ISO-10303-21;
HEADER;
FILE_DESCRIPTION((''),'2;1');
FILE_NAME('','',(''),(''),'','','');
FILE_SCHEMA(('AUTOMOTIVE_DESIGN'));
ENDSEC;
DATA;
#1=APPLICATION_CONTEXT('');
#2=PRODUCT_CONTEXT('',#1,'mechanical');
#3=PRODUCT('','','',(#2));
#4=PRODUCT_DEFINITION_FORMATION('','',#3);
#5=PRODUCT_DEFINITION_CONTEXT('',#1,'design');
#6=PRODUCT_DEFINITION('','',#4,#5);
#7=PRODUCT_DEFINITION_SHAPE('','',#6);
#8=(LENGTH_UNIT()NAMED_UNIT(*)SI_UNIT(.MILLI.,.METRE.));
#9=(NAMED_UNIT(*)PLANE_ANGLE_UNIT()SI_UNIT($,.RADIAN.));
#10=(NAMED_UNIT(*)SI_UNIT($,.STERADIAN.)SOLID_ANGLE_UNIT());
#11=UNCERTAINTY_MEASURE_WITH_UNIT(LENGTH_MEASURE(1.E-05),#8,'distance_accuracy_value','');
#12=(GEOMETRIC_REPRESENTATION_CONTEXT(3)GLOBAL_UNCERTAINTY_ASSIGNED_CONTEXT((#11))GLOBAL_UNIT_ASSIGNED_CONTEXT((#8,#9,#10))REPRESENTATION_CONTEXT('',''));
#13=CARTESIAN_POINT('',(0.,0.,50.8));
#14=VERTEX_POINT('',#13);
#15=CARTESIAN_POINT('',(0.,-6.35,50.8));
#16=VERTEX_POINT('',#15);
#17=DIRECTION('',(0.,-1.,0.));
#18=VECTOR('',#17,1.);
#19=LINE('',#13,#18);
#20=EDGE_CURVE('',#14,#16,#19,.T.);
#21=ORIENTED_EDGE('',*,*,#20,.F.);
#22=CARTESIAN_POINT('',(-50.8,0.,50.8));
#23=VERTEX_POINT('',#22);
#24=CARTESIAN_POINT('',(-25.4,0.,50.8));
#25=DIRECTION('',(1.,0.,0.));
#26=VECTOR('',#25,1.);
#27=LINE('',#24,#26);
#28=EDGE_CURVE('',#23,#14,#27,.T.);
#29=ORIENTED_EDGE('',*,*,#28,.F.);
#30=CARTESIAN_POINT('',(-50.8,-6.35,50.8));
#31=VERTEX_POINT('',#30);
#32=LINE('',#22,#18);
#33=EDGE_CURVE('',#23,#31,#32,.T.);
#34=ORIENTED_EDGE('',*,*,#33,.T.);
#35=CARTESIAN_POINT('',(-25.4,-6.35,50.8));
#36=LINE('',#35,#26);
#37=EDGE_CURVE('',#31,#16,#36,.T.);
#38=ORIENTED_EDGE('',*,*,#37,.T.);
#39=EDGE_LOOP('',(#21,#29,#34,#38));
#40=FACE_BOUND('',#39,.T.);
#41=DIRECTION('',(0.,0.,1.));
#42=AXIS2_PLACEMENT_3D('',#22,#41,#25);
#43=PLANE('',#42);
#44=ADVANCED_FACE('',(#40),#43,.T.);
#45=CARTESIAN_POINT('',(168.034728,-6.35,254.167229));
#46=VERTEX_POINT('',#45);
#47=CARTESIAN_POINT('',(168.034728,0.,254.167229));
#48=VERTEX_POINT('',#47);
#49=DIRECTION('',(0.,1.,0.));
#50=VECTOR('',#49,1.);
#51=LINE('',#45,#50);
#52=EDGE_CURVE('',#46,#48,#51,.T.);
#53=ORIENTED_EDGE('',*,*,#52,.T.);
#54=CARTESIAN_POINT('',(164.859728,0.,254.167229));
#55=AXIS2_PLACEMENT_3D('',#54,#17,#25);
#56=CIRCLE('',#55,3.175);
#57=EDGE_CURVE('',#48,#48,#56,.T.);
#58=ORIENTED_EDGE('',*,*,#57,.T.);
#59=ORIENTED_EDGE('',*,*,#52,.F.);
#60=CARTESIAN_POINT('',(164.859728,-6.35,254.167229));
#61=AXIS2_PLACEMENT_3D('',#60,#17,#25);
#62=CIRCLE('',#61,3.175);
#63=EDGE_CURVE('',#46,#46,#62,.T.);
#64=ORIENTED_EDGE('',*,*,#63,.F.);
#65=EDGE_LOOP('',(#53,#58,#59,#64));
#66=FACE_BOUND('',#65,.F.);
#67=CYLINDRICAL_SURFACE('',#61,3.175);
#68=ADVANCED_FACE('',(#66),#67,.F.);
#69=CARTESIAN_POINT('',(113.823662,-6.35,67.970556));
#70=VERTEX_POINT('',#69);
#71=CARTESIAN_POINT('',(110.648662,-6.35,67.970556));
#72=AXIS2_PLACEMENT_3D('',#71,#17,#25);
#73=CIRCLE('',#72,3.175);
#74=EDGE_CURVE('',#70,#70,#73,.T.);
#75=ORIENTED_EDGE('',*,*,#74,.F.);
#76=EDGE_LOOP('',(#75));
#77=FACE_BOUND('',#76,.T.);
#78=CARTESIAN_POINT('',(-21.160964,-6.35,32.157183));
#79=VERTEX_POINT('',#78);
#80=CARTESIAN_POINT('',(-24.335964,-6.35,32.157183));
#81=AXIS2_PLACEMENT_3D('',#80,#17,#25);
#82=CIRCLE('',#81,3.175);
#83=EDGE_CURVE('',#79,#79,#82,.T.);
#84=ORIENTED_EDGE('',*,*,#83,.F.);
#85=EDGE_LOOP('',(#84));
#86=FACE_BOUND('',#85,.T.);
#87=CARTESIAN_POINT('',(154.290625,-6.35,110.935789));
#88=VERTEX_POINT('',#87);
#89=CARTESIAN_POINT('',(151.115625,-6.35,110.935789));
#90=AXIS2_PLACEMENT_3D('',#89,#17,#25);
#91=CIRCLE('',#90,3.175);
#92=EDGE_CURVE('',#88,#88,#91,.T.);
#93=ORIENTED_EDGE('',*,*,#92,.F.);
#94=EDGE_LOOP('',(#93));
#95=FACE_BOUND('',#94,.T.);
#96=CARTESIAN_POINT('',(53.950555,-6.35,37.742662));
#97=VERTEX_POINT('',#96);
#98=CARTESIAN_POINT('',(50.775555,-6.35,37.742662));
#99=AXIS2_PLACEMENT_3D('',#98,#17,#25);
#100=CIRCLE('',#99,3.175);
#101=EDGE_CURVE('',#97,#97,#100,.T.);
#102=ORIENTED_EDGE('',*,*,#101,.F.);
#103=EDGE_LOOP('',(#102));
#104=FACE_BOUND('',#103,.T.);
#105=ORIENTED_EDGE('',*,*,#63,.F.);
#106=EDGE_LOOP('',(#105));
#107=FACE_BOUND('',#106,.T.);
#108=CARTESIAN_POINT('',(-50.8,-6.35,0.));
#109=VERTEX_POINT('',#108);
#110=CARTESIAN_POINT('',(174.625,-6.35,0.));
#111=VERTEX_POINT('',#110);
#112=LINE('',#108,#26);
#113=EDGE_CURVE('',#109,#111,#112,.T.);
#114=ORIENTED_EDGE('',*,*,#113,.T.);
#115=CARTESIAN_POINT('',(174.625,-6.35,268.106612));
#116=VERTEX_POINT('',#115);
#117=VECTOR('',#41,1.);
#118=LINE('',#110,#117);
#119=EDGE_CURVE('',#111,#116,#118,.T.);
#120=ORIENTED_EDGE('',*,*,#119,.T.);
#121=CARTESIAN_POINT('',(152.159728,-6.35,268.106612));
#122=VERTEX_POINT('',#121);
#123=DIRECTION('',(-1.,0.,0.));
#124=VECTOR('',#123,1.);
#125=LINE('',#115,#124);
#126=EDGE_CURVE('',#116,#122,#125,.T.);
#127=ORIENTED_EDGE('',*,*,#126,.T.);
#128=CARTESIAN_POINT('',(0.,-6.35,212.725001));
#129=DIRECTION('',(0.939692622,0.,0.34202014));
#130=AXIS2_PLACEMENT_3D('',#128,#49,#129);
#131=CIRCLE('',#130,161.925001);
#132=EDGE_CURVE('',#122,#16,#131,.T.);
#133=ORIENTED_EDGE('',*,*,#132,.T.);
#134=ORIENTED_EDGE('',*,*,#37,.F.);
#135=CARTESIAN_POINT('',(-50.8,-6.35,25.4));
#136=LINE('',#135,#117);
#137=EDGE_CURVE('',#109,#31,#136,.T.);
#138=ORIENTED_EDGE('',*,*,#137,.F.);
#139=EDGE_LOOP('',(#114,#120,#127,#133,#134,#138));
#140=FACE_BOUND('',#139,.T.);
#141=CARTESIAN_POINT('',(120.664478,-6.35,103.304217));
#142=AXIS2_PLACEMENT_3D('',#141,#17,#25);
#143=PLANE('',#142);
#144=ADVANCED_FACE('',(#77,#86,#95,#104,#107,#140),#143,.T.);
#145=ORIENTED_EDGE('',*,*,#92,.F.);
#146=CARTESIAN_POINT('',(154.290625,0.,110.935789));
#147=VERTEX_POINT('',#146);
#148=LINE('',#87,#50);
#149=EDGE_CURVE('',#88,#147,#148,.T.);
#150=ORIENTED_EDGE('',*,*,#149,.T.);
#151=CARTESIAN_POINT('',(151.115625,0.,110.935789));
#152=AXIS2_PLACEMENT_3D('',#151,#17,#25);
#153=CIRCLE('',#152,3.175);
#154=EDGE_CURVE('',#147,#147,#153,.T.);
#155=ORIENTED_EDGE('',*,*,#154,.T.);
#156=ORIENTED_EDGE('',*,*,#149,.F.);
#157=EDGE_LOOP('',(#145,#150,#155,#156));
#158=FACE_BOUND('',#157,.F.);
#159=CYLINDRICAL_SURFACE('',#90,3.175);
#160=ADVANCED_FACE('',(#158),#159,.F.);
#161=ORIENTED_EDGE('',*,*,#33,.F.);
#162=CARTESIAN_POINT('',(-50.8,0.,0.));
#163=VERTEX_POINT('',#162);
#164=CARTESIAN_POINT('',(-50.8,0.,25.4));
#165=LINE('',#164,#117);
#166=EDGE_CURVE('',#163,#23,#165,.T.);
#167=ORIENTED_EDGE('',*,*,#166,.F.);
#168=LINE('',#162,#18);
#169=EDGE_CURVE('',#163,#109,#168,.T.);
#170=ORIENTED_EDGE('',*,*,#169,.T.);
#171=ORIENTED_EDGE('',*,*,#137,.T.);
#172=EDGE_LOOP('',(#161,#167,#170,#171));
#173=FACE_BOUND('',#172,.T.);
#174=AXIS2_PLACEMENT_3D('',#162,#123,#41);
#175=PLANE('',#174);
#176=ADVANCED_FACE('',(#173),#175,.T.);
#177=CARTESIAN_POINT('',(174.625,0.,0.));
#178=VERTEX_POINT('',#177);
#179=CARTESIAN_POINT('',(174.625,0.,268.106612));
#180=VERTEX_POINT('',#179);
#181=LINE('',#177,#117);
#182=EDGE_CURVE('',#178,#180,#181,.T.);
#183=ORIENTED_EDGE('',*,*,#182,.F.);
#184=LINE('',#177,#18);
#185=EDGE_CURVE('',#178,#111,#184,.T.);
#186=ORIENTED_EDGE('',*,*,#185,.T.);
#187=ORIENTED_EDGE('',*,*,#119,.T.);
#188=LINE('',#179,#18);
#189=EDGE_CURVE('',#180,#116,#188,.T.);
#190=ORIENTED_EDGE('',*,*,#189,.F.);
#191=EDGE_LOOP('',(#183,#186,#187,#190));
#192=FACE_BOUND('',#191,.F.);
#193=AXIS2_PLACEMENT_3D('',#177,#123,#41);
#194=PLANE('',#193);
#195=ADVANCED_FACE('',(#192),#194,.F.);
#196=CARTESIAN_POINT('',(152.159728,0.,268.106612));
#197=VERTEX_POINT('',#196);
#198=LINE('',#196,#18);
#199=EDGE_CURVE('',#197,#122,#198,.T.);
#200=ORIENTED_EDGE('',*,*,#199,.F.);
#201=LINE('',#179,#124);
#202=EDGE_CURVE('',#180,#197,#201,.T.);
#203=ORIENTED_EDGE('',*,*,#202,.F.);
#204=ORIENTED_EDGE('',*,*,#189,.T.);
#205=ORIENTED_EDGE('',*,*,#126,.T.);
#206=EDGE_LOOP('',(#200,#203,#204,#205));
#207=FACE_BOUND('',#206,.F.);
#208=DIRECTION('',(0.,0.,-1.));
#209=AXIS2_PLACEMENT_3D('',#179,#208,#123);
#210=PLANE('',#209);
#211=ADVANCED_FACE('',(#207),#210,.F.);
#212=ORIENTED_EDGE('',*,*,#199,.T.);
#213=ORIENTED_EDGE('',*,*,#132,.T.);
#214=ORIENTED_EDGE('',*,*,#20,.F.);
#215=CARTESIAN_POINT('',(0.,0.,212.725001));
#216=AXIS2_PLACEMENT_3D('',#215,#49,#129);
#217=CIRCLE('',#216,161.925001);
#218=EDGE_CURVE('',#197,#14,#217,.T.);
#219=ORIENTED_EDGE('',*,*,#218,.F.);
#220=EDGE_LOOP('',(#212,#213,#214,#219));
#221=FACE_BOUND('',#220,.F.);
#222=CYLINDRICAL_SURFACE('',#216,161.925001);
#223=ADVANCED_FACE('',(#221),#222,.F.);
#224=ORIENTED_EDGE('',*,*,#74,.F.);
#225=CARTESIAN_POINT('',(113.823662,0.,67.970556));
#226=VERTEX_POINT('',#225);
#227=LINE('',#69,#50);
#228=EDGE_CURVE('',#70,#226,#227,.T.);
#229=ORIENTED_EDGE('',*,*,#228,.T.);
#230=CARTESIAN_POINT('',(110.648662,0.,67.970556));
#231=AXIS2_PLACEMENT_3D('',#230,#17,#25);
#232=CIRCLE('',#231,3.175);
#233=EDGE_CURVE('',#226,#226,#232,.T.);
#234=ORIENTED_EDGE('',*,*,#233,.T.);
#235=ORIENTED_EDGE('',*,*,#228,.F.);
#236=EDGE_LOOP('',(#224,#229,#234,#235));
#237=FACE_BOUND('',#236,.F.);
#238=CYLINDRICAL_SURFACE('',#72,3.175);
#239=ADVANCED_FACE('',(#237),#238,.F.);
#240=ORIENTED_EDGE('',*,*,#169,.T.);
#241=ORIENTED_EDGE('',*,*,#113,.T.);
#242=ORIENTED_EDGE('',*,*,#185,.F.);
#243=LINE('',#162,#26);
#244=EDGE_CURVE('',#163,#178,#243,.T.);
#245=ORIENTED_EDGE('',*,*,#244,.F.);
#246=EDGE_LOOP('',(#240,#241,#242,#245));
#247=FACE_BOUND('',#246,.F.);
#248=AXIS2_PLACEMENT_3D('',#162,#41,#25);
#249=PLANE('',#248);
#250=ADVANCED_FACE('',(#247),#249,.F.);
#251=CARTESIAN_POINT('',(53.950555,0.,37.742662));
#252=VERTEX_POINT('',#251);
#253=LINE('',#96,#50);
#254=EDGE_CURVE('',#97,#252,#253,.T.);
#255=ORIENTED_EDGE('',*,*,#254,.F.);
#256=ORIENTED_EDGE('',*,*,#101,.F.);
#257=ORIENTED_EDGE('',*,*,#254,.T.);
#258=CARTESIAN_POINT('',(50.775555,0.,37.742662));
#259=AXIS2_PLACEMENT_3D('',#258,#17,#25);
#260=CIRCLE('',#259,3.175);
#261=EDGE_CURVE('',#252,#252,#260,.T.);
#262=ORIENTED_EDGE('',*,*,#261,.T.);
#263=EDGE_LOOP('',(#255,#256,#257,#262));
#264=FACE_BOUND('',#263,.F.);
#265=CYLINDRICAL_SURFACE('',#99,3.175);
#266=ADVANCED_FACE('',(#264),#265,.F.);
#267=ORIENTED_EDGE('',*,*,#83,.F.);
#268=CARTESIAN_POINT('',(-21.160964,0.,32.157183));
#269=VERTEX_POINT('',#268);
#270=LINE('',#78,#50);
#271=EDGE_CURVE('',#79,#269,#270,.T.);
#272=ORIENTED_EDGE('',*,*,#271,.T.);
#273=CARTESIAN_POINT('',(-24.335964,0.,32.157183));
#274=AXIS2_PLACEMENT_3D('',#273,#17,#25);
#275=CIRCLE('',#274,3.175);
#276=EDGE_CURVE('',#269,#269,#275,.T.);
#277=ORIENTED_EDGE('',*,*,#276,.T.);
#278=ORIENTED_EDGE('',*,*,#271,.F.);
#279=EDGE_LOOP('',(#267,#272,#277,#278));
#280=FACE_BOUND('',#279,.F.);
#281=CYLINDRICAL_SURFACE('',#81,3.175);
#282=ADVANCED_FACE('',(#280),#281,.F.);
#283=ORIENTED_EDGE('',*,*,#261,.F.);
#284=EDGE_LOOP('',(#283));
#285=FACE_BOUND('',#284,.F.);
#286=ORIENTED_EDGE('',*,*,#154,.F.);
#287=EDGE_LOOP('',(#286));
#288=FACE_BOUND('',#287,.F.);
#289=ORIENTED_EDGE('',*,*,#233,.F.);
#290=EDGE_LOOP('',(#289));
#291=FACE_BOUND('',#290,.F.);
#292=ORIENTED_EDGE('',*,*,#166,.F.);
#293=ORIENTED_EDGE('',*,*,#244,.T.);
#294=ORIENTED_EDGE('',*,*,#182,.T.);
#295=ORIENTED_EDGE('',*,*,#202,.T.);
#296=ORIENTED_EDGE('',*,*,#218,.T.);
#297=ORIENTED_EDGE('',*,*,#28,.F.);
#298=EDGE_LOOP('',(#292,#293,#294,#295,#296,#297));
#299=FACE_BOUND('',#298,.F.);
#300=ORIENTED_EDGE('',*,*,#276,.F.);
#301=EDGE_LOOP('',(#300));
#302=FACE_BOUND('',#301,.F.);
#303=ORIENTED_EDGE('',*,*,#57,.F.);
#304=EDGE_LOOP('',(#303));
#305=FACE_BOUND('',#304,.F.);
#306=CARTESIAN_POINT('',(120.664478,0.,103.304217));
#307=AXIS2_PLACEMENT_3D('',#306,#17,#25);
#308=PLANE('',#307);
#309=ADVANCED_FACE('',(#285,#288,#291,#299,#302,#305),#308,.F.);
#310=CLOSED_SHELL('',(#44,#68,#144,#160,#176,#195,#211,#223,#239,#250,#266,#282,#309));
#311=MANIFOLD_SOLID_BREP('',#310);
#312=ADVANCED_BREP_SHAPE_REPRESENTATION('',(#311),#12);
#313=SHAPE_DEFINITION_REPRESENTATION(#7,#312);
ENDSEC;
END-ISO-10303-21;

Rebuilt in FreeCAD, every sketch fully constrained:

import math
import FreeCAD as App
import Part
import Sketcher

V = App.Vector
Q = App.Units.Quantity

doc = App.newDocument("Part")
body = doc.addObject("PartDesign::Body", "Body")

# Sketch on XZ plane
sketch1 = body.newObject("Sketcher::SketchObject", "Sketch")
sketch1.AttachmentSupport = (doc.getObject("XZ_Plane"), [""])
sketch1.MapMode = "FlatFace"
sketch1.addGeometry(Part.LineSegment(V(175, 0, 0), V(175, 268, 0)), False)
sketch1.addGeometry(Part.LineSegment(V(175, 268, 0), V(152, 268, 0)), False)
sketch1.addGeometry(Part.ArcOfCircle(Part.Circle(V(0, 213, 0), V(0, 0, 1), 162), math.radians(-90), math.radians(20)), False)
sketch1.addGeometry(Part.LineSegment(V(0, 51, 0), V(-51, 51, 0)), False)
sketch1.addGeometry(Part.LineSegment(V(-51, 51, 0), V(-51, 0, 0)), False)
sketch1.addGeometry(Part.LineSegment(V(-51, 0, 0), V(175, 0, 0)), False)
sketch1.addConstraint(Sketcher.Constraint("Coincident", 0, 2, 1, 1))
sketch1.addConstraint(Sketcher.Constraint("Coincident", 1, 2, 2, 2))
sketch1.addConstraint(Sketcher.Constraint("Tangent", 2, 1, 3, 1))
sketch1.addConstraint(Sketcher.Constraint("Coincident", 3, 2, 4, 1))
sketch1.addConstraint(Sketcher.Constraint("Coincident", 4, 2, 5, 1))
sketch1.addConstraint(Sketcher.Constraint("Coincident", 5, 2, 0, 1))
sketch1.addConstraint(Sketcher.Constraint("Vertical", 0))
sketch1.addConstraint(Sketcher.Constraint("Horizontal", 1))
sketch1.addConstraint(Sketcher.Constraint("Horizontal", 3))
sketch1.addConstraint(Sketcher.Constraint("Vertical", 4))
sketch1.addConstraint(Sketcher.Constraint("Horizontal", 5))
sketch1.addConstraint(Sketcher.Constraint("PointOnObject", 2, 3, -2))
sketch1.addConstraint(Sketcher.Constraint("PointOnObject", 4, 2, -1))
sketch1.addConstraint(Sketcher.Constraint("Equal", 3, 4))
sketch1.addConstraint(Sketcher.Constraint("DistanceX", 3, 2, 3, 1, Q("2 in")))
sketch1.addConstraint(Sketcher.Constraint("Radius", 2, Q("6.375 in")))
sketch1.addConstraint(Sketcher.Constraint("DistanceX", 5, 1, 5, 2, Q("8.875 in")))
sketch1.addConstraint(Sketcher.Constraint("DistanceX", 1, 2, 1, 1, Q("22.465272 mm")))
pad1 = body.newObject("PartDesign::Pad", "Pad")
pad1.Profile = sketch1
pad1.Length = Q("0.25 in")

# Sketch on XZ plane
sketch2 = body.newObject("Sketcher::SketchObject", "Sketch001")
sketch2.AttachmentSupport = (doc.getObject("XZ_Plane"), [""])
sketch2.MapMode = "FlatFace"
sketch2.AttachmentOffset = App.Placement(V(0, 0, 0.25 * 25.4), App.Rotation())
sketch2.addGeometry(Part.Circle(V(-24.3, 32.2, 0), V(0, 0, 1), 3.2), False)
sketch2.addGeometry(Part.Circle(V(50.8, 37.7, 0), V(0, 0, 1), 3.2), False)
sketch2.addGeometry(Part.Circle(V(110.6, 68, 0), V(0, 0, 1), 3.2), False)
sketch2.addGeometry(Part.Circle(V(151.1, 110.9, 0), V(0, 0, 1), 3.2), False)
sketch2.addGeometry(Part.Circle(V(164.9, 254.2, 0), V(0, 0, 1), 3.2), False)
sketch2.addConstraint(Sketcher.Constraint("Equal", 0, 1))
sketch2.addConstraint(Sketcher.Constraint("Equal", 1, 2))
sketch2.addConstraint(Sketcher.Constraint("Equal", 2, 3))
sketch2.addConstraint(Sketcher.Constraint("Equal", 3, 4))
sketch2.addConstraint(Sketcher.Constraint("Diameter", 0, Q("0.25 in")))
sketch2.addConstraint(Sketcher.Constraint("DistanceX", -1, 1, 2, 3, Q("110.648662 mm")))
sketch2.addConstraint(Sketcher.Constraint("DistanceY", -1, 1, 3, 3, Q("110.935789 mm")))
sketch2.addConstraint(Sketcher.Constraint("DistanceY", -1, 1, 4, 3, Q("254.167229 mm")))
sketch2.addConstraint(Sketcher.Constraint("DistanceX", 0, 3, 1, 3, Q("75.111519 mm")))
sketch2.addConstraint(Sketcher.Constraint("DistanceY", 0, 3, 1, 3, Q("5.585479 mm")))
sketch2.addConstraint(Sketcher.Constraint("DistanceX", 1, 3, 3, 3, Q("100.34007 mm")))
sketch2.addConstraint(Sketcher.Constraint("DistanceX", 0, 3, 4, 3, Q("189.195692 mm")))
sketch2.addConstraint(Sketcher.Constraint("DistanceX", 0, 3, -1, 1, Q("24.335964 mm")))
sketch2.addConstraint(Sketcher.Constraint("DistanceY", -1, 1, 0, 3, Q("32.157183 mm")))
sketch2.addConstraint(Sketcher.Constraint("DistanceY", -1, 1, 2, 3, Q("67.970556 mm")))
pocket1 = body.newObject("PartDesign::Pocket", "Pocket")
pocket1.Profile = sketch2
pocket1.Length = Q("1 in")

doc.recompute()
